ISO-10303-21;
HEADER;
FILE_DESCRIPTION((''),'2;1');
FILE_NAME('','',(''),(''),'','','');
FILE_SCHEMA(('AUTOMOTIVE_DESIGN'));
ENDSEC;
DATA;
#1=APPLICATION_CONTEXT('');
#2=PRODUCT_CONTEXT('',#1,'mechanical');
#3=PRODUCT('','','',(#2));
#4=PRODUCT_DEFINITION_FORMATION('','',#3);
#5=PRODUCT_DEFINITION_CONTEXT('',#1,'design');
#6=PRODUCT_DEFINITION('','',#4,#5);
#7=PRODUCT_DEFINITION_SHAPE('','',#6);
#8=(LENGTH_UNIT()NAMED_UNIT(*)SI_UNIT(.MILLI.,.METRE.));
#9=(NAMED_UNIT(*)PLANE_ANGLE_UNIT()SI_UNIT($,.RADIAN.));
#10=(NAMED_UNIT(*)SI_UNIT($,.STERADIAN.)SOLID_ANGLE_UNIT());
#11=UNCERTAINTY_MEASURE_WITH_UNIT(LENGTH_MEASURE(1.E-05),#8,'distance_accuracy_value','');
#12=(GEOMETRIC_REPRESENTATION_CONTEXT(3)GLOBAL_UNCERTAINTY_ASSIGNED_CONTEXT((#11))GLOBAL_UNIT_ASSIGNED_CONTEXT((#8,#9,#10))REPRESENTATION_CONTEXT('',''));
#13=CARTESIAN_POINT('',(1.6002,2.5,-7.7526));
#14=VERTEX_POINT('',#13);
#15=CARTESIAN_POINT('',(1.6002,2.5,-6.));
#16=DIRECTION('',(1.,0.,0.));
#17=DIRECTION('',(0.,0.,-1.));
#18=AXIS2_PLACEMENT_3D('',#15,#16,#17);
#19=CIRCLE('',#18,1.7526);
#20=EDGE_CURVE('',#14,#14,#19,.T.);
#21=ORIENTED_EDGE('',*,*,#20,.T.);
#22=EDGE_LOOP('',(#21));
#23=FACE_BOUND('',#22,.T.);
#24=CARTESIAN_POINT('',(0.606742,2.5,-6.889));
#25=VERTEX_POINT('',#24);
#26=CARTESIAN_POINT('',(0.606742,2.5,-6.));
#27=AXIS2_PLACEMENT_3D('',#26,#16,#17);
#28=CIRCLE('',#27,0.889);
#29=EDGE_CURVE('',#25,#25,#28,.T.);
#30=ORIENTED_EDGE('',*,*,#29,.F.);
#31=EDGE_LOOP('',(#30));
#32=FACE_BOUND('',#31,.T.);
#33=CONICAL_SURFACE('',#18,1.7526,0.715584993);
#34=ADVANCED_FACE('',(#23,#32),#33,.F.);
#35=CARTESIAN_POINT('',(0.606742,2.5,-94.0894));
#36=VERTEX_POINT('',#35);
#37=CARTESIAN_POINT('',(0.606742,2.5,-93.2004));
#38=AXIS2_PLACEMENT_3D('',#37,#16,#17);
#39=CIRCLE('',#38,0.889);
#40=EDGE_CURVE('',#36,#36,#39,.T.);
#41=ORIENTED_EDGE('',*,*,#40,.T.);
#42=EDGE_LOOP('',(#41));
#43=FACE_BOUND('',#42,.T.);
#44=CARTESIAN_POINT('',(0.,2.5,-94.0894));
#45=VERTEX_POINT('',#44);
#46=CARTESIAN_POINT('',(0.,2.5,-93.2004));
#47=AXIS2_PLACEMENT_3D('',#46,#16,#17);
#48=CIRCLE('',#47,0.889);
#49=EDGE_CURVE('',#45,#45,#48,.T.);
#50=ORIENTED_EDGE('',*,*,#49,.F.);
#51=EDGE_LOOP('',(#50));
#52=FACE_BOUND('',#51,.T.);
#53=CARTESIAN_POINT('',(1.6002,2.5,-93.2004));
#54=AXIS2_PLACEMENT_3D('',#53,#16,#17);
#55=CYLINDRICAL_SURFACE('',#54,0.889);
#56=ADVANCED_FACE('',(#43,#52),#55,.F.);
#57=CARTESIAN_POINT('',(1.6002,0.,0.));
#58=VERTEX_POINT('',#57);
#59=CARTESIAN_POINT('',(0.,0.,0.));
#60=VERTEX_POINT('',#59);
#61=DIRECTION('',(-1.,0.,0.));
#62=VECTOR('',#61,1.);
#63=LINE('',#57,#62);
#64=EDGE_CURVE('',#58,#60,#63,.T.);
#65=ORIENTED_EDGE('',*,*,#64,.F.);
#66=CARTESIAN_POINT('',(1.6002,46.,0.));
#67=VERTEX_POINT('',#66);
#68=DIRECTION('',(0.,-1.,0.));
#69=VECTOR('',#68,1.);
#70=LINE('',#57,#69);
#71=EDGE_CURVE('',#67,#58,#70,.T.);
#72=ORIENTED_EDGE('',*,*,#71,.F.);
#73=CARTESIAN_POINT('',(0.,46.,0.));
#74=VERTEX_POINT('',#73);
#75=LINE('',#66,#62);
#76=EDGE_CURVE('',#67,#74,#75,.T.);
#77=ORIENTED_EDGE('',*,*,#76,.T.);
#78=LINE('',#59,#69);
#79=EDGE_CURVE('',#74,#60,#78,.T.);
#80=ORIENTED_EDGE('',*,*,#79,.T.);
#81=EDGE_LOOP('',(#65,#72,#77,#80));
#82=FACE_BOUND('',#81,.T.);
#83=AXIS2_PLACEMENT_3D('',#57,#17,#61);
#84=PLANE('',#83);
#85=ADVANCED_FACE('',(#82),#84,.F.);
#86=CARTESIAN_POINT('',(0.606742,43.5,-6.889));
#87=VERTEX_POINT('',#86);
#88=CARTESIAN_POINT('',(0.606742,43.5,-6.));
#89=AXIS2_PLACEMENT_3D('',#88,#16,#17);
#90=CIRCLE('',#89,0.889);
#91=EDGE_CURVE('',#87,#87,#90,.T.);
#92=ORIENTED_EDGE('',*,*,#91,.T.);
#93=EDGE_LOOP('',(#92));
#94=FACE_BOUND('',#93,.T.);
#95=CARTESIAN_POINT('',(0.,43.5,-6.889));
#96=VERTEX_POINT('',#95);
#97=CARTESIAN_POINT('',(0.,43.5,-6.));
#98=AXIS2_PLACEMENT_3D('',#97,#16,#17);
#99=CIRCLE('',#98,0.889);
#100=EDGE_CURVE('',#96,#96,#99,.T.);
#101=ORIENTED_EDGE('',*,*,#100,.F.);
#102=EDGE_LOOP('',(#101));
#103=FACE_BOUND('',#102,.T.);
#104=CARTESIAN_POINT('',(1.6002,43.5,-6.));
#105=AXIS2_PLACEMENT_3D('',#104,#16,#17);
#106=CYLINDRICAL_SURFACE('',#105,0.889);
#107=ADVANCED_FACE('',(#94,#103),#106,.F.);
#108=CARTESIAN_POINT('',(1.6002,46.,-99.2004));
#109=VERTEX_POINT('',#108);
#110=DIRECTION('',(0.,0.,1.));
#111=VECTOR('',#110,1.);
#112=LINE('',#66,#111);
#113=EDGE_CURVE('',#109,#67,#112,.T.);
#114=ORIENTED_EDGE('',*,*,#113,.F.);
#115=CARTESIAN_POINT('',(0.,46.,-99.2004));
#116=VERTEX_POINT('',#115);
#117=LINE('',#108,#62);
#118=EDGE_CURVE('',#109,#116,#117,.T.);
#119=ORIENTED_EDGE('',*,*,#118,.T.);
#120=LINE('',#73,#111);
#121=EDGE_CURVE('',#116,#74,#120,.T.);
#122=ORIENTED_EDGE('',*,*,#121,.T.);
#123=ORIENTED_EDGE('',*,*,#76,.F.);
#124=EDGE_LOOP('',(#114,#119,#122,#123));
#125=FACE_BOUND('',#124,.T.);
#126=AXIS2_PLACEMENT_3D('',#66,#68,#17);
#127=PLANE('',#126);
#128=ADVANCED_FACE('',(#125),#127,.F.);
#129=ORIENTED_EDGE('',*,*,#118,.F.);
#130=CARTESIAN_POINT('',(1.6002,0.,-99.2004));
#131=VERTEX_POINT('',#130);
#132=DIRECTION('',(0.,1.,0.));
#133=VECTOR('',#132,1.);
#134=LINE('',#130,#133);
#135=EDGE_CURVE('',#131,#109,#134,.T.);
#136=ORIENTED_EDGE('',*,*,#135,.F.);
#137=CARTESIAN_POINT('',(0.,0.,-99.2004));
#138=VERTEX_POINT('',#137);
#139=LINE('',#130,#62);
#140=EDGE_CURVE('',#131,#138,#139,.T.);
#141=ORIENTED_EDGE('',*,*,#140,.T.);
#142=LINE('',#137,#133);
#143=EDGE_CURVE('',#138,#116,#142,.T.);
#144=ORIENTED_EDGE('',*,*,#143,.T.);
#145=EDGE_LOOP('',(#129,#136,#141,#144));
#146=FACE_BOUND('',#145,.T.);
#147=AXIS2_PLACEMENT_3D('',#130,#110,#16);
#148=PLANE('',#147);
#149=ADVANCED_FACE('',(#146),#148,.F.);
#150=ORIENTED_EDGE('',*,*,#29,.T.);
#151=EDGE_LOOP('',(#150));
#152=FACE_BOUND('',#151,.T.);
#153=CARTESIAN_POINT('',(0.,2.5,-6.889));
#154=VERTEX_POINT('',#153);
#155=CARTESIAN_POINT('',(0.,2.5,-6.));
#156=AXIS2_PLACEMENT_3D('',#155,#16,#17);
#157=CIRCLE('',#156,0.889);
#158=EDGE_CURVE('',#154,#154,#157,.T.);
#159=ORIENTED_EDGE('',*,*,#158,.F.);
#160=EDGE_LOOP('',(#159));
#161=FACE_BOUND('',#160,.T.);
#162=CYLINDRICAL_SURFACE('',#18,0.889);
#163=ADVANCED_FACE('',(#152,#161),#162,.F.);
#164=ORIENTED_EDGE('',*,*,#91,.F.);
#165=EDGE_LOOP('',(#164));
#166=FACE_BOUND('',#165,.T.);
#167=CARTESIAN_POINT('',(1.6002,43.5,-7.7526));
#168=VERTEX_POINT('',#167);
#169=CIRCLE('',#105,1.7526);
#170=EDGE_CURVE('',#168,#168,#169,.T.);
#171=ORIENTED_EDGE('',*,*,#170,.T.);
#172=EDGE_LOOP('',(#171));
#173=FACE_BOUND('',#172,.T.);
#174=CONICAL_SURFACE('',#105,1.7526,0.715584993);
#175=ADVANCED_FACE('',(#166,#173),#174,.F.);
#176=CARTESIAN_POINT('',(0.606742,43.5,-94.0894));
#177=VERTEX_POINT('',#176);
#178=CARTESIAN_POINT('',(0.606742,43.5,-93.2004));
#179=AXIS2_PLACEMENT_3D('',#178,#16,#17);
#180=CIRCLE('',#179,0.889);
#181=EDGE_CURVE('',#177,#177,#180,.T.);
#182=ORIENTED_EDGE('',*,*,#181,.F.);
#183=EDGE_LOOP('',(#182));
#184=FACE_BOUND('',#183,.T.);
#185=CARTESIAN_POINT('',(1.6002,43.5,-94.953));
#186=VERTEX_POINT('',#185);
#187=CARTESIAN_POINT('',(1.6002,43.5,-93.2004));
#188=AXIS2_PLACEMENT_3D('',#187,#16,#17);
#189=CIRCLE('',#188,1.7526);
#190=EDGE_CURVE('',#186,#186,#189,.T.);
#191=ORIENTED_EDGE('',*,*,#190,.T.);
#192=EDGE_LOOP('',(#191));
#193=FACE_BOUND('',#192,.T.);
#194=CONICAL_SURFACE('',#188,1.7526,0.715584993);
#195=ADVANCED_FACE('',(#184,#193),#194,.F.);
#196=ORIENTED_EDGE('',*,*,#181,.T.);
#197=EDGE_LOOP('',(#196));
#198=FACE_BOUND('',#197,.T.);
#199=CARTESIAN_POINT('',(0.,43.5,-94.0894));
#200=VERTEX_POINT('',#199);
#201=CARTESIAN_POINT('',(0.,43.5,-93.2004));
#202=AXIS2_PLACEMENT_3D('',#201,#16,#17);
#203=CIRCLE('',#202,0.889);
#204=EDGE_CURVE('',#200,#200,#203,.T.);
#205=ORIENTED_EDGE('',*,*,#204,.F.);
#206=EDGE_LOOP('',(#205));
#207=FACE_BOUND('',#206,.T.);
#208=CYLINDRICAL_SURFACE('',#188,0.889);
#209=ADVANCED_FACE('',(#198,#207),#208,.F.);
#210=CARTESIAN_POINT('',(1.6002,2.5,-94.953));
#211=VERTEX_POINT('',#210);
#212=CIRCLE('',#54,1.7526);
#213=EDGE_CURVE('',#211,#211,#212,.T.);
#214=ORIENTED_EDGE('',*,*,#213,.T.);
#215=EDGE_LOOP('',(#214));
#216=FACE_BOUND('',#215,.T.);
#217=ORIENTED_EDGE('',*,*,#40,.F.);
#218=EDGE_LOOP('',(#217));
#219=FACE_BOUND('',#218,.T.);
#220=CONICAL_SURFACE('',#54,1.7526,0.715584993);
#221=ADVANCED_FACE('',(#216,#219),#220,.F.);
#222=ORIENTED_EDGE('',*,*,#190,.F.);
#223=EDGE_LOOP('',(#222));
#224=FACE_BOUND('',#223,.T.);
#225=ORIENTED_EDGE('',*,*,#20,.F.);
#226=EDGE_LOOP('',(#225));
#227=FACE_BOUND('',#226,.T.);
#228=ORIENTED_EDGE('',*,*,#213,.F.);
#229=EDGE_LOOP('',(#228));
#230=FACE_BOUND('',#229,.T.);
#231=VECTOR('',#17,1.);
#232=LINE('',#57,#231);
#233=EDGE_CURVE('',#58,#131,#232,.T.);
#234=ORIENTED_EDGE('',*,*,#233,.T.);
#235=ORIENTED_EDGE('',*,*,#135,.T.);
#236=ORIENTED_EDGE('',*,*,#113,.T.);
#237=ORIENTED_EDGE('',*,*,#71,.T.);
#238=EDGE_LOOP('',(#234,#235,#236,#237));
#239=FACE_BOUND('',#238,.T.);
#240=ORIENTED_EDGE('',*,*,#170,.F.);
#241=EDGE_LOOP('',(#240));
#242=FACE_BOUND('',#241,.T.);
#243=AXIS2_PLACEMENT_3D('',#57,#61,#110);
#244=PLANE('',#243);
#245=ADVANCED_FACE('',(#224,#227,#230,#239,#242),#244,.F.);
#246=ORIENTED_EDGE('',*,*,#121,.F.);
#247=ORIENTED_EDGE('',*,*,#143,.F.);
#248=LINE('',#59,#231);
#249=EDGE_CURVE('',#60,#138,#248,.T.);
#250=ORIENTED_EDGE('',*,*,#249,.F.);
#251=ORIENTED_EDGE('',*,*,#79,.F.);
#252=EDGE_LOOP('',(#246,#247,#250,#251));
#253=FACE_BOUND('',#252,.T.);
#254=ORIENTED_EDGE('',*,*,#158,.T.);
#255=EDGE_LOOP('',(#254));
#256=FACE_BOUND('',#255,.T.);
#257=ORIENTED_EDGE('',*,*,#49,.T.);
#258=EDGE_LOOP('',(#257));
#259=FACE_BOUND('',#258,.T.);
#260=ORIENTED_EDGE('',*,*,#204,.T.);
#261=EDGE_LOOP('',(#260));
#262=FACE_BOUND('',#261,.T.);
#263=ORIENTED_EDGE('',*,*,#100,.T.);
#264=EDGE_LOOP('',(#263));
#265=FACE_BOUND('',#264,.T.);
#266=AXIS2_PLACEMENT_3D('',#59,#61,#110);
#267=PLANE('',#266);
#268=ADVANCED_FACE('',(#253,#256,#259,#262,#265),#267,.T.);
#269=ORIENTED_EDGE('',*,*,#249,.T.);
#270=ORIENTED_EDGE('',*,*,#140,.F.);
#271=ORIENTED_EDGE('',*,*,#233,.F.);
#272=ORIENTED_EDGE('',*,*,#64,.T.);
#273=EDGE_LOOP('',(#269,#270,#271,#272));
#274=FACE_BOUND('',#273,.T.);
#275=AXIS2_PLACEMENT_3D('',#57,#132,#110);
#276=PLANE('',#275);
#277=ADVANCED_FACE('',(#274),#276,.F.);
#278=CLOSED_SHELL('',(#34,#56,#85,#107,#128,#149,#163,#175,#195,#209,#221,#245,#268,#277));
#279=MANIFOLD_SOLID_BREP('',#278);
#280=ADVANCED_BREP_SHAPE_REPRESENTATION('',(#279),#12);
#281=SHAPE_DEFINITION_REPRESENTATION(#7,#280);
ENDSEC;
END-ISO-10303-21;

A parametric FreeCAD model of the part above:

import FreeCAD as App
import Part
import Sketcher

V = App.Vector
Q = App.Units.Quantity

doc = App.newDocument("Part")
params = doc.addObject("Spreadsheet::Sheet", "Params")
for row, (alias, value) in enumerate([
    ("pad1_length", "0.063 in"),
    ("sketch2_width", "0.063 in"),
    ("sketch2_height", "0.069 in"),
    ("sketch2_height2", "0.035 in"),
    ("groove_angle", "360 deg"),
    ("linearpattern_pitch", "41 mm"),
    ("linearpattern2_pitch", "96.358237 mm"),
    ("linearpattern3_pitch", "87.2004 mm"),
], start=1):
    params.set(f"A{row}", alias)
    params.set(f"B{row}", "=" + value)
    params.setAlias(f"B{row}", alias)

body = doc.addObject("PartDesign::Body", "Body")

sketch1 = body.newObject("Sketcher::SketchObject", "Sketch")
sketch1.AttachmentSupport = (doc.getObject("YZ_Plane"), [""])
sketch1.MapMode = "FlatFace"
sketch1.addGeometry([
    Part.LineSegment(V(46, 0, 0), V(0, 0, 0)),
    Part.LineSegment(V(0, 0, 0), V(0, -99, 0)),
    Part.LineSegment(V(0, -99, 0), V(46, -99, 0)),
    Part.LineSegment(V(46, -99, 0), V(46, 0, 0)),
], False)
sketch1.addConstraint([
    Sketcher.Constraint("Coincident", 0, 2, 1, 1),
    Sketcher.Constraint("Coincident", 1, 2, 2, 1),
    Sketcher.Constraint("Coincident", 2, 2, 3, 1),
    Sketcher.Constraint("Coincident", 3, 2, 0, 1),
    Sketcher.Constraint("Horizontal", 0),
    Sketcher.Constraint("Vertical", 1),
    Sketcher.Constraint("Horizontal", 2),
    Sketcher.Constraint("Vertical", 3),
    Sketcher.Constraint("Coincident", 0, 2, -1, 1),
    Sketcher.Constraint("DistanceX", 0, 2, 0, 1, 46.0),
    Sketcher.Constraint("DistanceY", 1, 2, 1, 1, 99.2004),
])
pad1 = body.newObject("PartDesign::Pad", "Pad")
pad1.Profile = sketch1
pad1.setExpression("Length", "Params.pad1_length")

sketch2 = body.newObject("Sketcher::SketchObject", "Sketch001")
sketch2.AttachmentSupport = (doc.getObject("XZ_Plane"), [""])
sketch2.MapMode = "FlatFace"
sketch2.AttachmentOffset = App.Placement(V(0, 0, -43.5), App.Rotation())
sketch2.addGeometry([
    Part.LineSegment(V(0, -6, 0), V(1.6, -6, 0)),
    Part.LineSegment(V(1.6, -6, 0), V(1.6, -7.8, 0)),
    Part.LineSegment(V(1.6, -7.8, 0), V(0.6, -6.9, 0)),
    Part.LineSegment(V(0.6, -6.9, 0), V(0, -6.9, 0)),
    Part.LineSegment(V(0, -6.9, 0), V(0, -6, 0)),
], False)
sketch2.addGeometry(Part.LineSegment(V(1.6, -6, 0), V(0, -6, 0)), True)
sketch2.addConstraint([
    Sketcher.Constraint("Coincident", 0, 2, 1, 1),
    Sketcher.Constraint("Coincident", 1, 2, 2, 1),
    Sketcher.Constraint("Coincident", 2, 2, 3, 1),
    Sketcher.Constraint("Coincident", 3, 2, 4, 1),
    Sketcher.Constraint("Coincident", 4, 2, 0, 1),
    Sketcher.Constraint("Horizontal", 0),
    Sketcher.Constraint("Vertical", 1),
    Sketcher.Constraint("Horizontal", 3),
    Sketcher.Constraint("Vertical", 4),
    Sketcher.Constraint("Horizontal", 5),
    Sketcher.Constraint("Coincident", 5, 1, 0, 2),
    Sketcher.Constraint("PointOnObject", 3, 2, -2),
    Sketcher.Constraint("PointOnObject", 5, 2, -2),
    Sketcher.Constraint("Angle", 2, Q("139 deg")),
    Sketcher.Constraint("DistanceX", 0, 1, 0, 2, Q("0.063 in")),
    Sketcher.Constraint("DistanceY", 1, 2, 1, 1, Q("0.069 in")),
    Sketcher.Constraint("DistanceY", 4, 1, 4, 2, Q("0.035 in")),
    Sketcher.Constraint("DistanceY", 0, 2, -1, 1, 6.0),
])
sketch2.setExpression("Constraints[14]", "Params.sketch2_width")
sketch2.setExpression("Constraints[15]", "Params.sketch2_height")
sketch2.setExpression("Constraints[16]", "Params.sketch2_height2")
groove = body.newObject("PartDesign::Groove", "Groove")
groove.Profile = sketch2
groove.ReferenceAxis = (sketch2, ["Axis0"])
groove.setExpression("Angle", "Params.groove_angle")
doc.recompute()

linearpattern = body.newObject("PartDesign::LinearPattern", "LinearPattern")
linearpattern.Originals = [groove]
linearpattern.Direction = (doc.getObject("Y_Axis"), [""])
linearpattern.Mode = "offset"
linearpattern.setExpression("Offset", "Params.linearpattern_pitch")
linearpattern.Occurrences = 2
linearpattern.Reversed = True
body.Tip = linearpattern
doc.recompute()

datumline = body.newObject("PartDesign::Line", "DatumLine")
datumline.Placement = App.Placement(V(0, 0, 0), App.Rotation(V(0, 0, 1), V(0, -0.425495541, -0.904960521)))
linearpattern2 = body.newObject("PartDesign::LinearPattern", "LinearPattern001")
linearpattern2.Originals = [groove]
linearpattern2.Direction = (datumline, [""])
linearpattern2.Mode = "offset"
linearpattern2.setExpression("Offset", "Params.linearpattern2_pitch")
linearpattern2.Occurrences = 2
body.Tip = linearpattern2
doc.recompute()

linearpattern3 = body.newObject("PartDesign::LinearPattern", "LinearPattern002")
linearpattern3.Originals = [groove]
linearpattern3.Direction = (doc.getObject("Z_Axis"), [""])
linearpattern3.Mode = "offset"
linearpattern3.setExpression("Offset", "Params.linearpattern3_pitch")
linearpattern3.Occurrences = 2
linearpattern3.Reversed = True
body.Tip = linearpattern3

doc.recompute()
